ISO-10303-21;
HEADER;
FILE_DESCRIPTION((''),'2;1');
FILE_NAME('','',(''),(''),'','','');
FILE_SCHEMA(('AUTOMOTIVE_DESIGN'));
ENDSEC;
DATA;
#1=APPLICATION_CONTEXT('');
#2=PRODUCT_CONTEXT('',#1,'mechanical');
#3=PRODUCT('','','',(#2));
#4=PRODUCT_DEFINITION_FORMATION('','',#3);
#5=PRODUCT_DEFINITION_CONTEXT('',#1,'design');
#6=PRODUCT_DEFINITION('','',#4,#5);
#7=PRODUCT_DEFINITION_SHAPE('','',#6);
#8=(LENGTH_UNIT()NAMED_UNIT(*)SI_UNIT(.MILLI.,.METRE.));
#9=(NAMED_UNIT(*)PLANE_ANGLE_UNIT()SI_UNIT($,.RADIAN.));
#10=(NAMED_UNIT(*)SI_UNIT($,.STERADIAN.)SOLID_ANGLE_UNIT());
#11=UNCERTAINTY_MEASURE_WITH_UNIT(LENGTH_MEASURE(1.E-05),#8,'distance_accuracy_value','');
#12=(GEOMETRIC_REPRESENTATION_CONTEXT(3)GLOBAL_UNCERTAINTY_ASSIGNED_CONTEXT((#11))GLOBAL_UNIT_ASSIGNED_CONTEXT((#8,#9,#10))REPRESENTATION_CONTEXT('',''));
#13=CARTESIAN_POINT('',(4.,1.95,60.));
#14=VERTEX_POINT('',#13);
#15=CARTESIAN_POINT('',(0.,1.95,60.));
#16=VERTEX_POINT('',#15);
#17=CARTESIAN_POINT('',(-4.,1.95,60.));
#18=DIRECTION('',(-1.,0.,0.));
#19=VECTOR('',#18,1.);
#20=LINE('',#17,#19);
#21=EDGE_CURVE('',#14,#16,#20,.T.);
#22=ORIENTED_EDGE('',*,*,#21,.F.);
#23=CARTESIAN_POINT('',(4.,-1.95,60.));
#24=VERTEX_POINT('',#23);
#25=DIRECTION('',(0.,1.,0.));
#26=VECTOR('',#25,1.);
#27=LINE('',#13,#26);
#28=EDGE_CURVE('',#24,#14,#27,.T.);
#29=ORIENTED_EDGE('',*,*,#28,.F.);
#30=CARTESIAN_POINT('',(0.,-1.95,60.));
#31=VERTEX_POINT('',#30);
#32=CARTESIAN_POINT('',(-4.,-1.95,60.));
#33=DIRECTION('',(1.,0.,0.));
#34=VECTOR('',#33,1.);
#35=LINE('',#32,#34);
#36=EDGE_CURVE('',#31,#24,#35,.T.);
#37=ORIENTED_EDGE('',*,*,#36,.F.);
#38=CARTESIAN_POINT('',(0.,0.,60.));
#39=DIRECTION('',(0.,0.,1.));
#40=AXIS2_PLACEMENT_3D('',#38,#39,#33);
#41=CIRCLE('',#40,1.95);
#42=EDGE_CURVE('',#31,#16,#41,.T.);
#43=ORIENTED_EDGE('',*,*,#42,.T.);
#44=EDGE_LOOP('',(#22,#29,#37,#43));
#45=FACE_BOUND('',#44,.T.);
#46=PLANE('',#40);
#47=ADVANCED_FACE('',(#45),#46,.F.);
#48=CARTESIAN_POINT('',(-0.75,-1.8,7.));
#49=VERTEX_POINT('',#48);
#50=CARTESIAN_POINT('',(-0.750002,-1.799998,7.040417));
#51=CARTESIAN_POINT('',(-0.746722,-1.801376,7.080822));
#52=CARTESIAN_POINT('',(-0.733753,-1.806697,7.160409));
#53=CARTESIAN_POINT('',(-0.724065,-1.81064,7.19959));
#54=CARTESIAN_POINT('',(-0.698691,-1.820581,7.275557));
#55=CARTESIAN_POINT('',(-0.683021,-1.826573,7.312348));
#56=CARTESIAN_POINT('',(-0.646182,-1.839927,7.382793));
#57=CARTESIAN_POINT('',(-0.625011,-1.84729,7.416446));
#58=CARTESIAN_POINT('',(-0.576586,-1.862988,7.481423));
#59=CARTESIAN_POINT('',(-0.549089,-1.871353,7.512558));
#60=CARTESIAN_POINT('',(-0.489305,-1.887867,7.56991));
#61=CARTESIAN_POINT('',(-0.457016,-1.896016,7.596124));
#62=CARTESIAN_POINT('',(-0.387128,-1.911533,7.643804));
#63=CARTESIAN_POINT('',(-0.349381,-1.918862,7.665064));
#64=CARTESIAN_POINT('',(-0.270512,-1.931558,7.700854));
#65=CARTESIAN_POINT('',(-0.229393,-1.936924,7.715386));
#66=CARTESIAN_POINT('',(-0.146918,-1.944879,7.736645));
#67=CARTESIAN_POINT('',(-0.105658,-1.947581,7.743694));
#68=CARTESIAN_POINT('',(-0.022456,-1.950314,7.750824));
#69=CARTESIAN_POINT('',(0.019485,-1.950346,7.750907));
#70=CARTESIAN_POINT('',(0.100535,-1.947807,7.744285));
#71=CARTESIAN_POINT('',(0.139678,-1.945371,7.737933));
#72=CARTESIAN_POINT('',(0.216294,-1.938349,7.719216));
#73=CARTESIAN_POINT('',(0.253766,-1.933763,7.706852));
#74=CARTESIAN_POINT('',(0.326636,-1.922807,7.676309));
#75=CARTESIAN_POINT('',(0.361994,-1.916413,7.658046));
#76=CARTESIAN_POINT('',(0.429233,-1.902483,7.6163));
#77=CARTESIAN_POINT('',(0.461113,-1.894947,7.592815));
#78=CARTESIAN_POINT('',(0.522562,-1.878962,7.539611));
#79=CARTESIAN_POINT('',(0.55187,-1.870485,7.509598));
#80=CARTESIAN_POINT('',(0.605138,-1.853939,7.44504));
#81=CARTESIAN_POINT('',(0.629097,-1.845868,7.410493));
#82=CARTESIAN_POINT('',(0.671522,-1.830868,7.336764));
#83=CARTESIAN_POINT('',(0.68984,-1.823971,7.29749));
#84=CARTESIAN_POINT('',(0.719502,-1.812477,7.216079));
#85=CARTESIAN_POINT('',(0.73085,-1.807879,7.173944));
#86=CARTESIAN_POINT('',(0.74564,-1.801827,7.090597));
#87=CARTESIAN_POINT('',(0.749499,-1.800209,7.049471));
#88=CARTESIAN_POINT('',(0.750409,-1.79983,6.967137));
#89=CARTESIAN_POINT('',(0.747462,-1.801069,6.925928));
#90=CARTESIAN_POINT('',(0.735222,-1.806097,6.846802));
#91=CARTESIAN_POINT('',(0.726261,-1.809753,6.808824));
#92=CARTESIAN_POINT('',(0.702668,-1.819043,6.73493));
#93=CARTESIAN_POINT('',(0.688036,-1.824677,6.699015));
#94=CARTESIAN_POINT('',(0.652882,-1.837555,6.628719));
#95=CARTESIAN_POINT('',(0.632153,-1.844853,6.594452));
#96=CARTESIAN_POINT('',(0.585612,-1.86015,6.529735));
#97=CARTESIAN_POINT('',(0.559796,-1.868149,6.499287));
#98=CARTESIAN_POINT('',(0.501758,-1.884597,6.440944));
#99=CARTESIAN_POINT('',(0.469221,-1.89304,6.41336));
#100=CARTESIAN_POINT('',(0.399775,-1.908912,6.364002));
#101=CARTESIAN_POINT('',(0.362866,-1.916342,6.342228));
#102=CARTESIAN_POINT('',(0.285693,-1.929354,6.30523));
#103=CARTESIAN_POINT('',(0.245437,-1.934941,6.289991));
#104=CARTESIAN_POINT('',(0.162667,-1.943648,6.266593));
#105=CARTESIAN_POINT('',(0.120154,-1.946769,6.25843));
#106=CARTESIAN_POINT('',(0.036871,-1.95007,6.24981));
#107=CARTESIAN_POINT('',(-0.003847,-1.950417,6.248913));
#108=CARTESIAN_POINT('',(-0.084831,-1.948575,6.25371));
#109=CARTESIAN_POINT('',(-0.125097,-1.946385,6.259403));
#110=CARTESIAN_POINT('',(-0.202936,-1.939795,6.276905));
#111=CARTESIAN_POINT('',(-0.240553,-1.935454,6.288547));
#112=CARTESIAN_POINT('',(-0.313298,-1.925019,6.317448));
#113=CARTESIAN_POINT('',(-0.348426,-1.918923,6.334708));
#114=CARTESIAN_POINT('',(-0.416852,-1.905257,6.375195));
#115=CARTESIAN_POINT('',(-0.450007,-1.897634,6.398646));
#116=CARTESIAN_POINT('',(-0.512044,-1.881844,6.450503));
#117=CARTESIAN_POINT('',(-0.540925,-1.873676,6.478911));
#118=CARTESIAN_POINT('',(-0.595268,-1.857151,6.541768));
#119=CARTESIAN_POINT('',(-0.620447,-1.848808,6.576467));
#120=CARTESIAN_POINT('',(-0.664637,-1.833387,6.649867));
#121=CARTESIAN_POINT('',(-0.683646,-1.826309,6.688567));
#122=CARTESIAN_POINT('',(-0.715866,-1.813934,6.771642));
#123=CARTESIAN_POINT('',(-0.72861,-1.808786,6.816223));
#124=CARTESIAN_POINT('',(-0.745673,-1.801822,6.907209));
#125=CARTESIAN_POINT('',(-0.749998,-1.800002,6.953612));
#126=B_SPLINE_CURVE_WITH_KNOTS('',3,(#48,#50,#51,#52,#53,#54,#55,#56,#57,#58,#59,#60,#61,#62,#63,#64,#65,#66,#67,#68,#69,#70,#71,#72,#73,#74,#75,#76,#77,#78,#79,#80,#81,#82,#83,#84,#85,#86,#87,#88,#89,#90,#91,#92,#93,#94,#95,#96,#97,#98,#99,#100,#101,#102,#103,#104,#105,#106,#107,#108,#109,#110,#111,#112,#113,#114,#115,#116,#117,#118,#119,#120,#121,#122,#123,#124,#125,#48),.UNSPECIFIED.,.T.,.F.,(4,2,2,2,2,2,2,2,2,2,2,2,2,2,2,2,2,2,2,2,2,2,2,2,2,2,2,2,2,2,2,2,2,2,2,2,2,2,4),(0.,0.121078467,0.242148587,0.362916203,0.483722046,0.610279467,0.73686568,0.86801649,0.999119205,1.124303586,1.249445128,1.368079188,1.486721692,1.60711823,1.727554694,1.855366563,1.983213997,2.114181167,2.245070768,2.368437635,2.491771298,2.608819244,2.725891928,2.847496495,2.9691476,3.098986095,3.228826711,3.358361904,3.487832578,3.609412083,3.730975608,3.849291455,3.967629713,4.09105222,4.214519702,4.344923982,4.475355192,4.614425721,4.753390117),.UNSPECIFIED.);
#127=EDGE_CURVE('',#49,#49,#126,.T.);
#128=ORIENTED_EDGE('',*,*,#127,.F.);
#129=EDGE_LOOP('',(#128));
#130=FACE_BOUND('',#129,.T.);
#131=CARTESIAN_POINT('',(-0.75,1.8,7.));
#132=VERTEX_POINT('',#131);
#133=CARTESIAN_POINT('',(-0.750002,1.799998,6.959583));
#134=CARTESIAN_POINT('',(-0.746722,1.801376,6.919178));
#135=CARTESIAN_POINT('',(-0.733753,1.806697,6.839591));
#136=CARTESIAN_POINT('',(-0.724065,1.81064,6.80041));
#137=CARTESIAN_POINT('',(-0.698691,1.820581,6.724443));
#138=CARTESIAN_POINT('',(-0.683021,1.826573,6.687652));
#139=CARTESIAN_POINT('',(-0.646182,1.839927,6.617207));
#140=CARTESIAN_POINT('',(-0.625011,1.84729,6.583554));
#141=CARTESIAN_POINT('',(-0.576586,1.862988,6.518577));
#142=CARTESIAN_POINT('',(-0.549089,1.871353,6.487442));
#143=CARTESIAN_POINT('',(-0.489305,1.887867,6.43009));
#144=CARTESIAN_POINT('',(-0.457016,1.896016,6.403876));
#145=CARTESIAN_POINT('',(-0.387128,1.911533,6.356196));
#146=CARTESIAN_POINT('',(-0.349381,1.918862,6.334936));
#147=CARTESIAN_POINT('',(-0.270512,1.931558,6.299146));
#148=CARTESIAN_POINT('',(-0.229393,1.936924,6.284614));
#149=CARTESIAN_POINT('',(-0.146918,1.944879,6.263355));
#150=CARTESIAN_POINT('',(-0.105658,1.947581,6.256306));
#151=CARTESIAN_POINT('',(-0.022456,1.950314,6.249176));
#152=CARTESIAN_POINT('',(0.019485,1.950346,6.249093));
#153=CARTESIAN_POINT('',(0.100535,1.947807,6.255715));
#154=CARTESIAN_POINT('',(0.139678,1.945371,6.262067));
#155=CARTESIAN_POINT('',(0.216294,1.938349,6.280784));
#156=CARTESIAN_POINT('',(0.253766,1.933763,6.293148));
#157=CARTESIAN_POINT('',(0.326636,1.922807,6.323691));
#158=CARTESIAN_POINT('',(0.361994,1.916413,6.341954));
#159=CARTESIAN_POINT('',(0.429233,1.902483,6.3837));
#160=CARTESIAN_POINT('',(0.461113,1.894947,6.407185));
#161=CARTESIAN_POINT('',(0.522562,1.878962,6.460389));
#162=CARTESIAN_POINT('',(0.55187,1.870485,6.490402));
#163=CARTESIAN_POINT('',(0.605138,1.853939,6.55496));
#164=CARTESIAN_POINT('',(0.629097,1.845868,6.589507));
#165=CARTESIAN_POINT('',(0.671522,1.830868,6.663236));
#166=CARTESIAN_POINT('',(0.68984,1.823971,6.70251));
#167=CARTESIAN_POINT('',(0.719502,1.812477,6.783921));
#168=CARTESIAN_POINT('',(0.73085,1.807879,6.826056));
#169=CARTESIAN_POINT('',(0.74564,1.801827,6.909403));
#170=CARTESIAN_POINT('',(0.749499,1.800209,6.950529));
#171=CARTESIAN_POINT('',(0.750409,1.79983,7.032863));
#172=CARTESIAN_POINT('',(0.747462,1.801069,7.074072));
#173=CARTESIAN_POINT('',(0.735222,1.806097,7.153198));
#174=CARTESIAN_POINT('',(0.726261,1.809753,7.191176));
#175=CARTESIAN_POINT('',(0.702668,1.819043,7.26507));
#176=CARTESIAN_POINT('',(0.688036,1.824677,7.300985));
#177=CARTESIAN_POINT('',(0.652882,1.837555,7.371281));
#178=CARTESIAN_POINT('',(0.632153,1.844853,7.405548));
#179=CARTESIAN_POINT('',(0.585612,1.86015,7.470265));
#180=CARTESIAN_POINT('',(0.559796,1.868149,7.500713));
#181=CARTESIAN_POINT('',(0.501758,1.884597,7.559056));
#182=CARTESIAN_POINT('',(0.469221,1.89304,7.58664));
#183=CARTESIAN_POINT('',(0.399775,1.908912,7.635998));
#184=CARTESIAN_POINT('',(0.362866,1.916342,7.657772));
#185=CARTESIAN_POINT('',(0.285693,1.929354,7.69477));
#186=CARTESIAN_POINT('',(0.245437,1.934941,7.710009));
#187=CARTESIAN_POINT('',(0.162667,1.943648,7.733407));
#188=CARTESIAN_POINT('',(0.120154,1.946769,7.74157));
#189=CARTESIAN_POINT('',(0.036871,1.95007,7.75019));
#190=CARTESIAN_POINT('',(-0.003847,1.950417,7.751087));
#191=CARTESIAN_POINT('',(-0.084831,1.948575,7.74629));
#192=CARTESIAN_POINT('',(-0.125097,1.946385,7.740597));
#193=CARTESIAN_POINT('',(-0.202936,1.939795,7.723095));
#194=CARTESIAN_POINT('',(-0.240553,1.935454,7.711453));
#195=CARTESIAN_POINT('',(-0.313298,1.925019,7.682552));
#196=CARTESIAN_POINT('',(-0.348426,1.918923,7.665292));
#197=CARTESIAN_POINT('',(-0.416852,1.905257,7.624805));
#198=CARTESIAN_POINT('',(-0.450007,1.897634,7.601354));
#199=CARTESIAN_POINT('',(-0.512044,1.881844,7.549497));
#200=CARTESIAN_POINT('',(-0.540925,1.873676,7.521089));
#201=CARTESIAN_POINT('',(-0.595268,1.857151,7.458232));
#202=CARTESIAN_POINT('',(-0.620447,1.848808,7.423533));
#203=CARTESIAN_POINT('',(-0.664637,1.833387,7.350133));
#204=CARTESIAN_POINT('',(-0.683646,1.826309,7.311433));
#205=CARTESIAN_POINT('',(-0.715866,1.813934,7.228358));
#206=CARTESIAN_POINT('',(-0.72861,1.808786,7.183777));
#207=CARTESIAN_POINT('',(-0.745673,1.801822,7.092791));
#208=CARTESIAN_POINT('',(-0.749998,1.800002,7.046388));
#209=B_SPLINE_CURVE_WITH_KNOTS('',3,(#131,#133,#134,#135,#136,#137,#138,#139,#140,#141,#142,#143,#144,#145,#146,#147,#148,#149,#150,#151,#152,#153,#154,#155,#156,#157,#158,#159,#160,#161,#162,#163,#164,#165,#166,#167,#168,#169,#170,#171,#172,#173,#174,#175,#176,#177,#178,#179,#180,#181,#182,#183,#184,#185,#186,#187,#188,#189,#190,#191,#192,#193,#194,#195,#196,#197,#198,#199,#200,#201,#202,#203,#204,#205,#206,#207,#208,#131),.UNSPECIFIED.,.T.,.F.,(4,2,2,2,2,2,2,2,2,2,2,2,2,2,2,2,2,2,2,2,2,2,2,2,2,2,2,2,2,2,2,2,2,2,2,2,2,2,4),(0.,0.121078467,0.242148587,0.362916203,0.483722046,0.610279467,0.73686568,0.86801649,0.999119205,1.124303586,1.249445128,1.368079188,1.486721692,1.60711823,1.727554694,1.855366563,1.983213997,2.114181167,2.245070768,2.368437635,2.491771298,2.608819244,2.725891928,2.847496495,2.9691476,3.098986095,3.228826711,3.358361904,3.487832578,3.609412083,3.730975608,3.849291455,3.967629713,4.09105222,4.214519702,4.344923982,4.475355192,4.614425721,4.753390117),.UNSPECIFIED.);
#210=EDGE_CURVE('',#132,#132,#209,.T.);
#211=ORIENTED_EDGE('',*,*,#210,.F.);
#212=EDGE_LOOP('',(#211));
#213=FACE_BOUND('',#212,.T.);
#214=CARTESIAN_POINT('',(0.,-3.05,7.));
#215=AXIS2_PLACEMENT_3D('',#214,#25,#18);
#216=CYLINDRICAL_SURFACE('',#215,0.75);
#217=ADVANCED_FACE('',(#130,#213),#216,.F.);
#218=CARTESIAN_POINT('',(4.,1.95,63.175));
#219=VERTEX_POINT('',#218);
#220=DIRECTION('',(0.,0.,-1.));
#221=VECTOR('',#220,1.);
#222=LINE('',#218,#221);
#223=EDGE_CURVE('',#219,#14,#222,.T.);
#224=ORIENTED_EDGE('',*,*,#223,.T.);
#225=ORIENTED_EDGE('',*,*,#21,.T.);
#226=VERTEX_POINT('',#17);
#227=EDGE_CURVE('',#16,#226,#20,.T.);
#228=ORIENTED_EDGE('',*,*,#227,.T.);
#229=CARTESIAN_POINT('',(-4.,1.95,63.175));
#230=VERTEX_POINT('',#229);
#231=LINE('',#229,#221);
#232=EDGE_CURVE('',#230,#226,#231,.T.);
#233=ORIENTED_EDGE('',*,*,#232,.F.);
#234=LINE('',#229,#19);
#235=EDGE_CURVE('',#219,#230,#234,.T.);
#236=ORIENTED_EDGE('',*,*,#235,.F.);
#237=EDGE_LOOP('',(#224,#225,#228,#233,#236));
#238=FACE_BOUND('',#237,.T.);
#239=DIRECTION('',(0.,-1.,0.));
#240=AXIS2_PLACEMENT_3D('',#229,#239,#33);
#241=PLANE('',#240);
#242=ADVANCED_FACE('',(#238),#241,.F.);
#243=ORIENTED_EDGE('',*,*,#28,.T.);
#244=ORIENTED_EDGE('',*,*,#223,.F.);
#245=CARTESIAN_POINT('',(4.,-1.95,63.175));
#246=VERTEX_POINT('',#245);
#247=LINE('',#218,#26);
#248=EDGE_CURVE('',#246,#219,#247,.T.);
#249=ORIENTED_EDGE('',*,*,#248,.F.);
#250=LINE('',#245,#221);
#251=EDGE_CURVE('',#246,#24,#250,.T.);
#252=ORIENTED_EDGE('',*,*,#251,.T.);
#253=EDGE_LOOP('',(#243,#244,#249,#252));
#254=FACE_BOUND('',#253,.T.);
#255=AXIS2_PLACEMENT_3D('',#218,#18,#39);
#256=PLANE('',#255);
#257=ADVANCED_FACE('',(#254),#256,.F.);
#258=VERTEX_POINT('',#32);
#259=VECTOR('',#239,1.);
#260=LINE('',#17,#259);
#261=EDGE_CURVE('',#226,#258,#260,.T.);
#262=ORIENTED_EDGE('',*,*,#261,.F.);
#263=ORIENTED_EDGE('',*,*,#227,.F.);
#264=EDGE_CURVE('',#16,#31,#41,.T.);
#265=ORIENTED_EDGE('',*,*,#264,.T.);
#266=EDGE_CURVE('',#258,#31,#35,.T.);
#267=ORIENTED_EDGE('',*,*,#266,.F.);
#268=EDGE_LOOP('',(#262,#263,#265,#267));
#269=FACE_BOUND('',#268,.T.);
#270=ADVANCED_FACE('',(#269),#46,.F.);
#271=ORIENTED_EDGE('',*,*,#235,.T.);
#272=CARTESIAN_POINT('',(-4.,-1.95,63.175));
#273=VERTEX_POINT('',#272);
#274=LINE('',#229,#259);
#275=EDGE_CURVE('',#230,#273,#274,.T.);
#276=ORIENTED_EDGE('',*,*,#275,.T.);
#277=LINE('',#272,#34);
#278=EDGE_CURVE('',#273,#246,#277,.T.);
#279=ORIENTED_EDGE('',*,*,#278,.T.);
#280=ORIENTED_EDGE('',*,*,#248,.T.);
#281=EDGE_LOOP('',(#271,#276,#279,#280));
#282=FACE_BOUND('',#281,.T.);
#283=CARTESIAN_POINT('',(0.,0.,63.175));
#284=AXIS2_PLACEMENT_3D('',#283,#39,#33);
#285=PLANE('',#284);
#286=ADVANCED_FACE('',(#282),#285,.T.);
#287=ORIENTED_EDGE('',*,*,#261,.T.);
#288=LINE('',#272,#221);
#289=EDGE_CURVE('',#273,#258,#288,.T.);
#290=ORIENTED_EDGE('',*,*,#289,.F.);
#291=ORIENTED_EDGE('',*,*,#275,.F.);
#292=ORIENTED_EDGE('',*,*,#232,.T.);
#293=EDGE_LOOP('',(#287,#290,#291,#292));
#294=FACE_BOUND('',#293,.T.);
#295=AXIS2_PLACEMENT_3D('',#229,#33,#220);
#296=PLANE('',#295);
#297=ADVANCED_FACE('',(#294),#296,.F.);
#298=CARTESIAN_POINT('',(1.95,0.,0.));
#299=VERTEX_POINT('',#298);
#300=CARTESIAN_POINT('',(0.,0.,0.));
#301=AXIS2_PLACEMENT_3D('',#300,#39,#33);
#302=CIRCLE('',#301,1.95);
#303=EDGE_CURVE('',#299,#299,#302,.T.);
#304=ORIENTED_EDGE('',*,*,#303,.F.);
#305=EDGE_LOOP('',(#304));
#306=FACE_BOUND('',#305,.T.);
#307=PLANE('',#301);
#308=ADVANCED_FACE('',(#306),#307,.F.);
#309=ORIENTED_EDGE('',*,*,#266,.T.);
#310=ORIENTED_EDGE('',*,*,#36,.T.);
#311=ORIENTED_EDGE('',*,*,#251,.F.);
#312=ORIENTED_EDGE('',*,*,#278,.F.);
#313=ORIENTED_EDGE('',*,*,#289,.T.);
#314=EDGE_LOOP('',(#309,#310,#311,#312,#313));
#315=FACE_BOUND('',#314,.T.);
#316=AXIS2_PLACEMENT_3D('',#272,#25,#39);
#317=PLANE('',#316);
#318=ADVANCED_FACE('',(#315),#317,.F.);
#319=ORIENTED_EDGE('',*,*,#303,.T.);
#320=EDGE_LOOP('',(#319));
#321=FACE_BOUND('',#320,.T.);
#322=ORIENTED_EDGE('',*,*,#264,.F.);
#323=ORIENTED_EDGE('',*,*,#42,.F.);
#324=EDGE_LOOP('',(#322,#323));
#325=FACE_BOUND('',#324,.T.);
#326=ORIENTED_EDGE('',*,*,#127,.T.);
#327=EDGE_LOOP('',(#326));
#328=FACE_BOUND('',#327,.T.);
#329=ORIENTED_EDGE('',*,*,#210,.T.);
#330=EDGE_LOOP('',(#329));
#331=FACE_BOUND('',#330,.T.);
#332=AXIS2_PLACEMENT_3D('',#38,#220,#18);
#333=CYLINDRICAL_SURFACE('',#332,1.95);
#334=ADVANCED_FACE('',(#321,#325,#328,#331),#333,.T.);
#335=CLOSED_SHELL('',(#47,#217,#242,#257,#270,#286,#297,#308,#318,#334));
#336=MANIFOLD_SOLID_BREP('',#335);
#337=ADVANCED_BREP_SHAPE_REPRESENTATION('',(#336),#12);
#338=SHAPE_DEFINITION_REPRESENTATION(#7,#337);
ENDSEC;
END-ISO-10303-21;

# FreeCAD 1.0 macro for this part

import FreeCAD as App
import Part
import Sketcher

V = App.Vector


def add_polygon(sketch, points):
    """Adds a closed chain of lines whose ends are joined by coincident constraints."""
    first, n = sketch.GeometryCount, len(points)
    for a, b in zip(points, points[1:] + points[:1]):
        sketch.addGeometry(Part.LineSegment(App.Vector(*a, 0), App.Vector(*b, 0)), False)
    for i in range(n):
        sketch.addConstraint(Sketcher.Constraint("Coincident", first + i, 2, first + (i + 1) % n, 1))

doc = App.newDocument("Part")
body = doc.addObject("PartDesign::Body", "Body")

# Sketch on XY plane
sketch1 = doc.addObject("Sketcher::SketchObject", "Sketch")
body.addObject(sketch1)
sketch1.AttachmentSupport = (doc.XY_Plane, [""])
sketch1.MapMode = "FlatFace"
sketch1.addGeometry(Part.Circle(V(0, 0, 0), V(0, 0, 1), 1.95), False)
sketch1.addConstraint(Sketcher.Constraint("Coincident", 0, 3, -1, 1))
sketch1.addConstraint(Sketcher.Constraint("Diameter", 0, 3.9))
pad1 = doc.addObject("PartDesign::Pad", "Pad")
body.addObject(pad1)
pad1.Profile = sketch1
pad1.Length = 60

# Sketch on XY plane
sketch2 = doc.addObject("Sketcher::SketchObject", "Sketch001")
body.addObject(sketch2)
sketch2.AttachmentSupport = (doc.XY_Plane, [""])
sketch2.MapMode = "FlatFace"
sketch2.AttachmentOffset = App.Placement(V(0, 0, 60), App.Rotation())
add_polygon(sketch2, [(-4, 1.95), (-4, -1.95), (4, -1.95), (4, 1.95)])  # lines 0-3
sketch2.addConstraint(Sketcher.Constraint("Vertical", 0))
sketch2.addConstraint(Sketcher.Constraint("Horizontal", 1))
sketch2.addConstraint(Sketcher.Constraint("Vertical", 2))
sketch2.addConstraint(Sketcher.Constraint("Horizontal", 3))
sketch2.addConstraint(Sketcher.Constraint("Symmetric", 0, 2, 2, 2, -1, 1))
sketch2.addConstraint(Sketcher.Constraint("DistanceX", 1, 1, 1, 2, 8.0))
sketch2.addConstraint(Sketcher.Constraint("DistanceY", 0, 2, 0, 1, 3.9))
pad2 = doc.addObject("PartDesign::Pad", "Pad001")
body.addObject(pad2)
pad2.Profile = sketch2
pad2.Length = 3.175

# Sketch on XZ plane
sketch3 = doc.addObject("Sketcher::SketchObject", "Sketch002")
body.addObject(sketch3)
sketch3.AttachmentSupport = (doc.XZ_Plane, [""])
sketch3.MapMode = "FlatFace"
sketch3.AttachmentOffset = App.Placement(V(0, 0, -1.95), App.Rotation())
sketch3.addGeometry(Part.Circle(V(0, 7, 0), V(0, 0, 1), 0.75), False)
sketch3.addConstraint(Sketcher.Constraint("PointOnObject", 0, 3, -2))
sketch3.addConstraint(Sketcher.Constraint("Diameter", 0, 1.5))
sketch3.addConstraint(Sketcher.Constraint("DistanceY", -1, 1, 0, 3, 7.0))
pocket1 = doc.addObject("PartDesign::Pocket", "Pocket")
body.addObject(pocket1)
pocket1.Profile = sketch3
pocket1.Length = 5
pocket1.Reversed = True

doc.recompute()
